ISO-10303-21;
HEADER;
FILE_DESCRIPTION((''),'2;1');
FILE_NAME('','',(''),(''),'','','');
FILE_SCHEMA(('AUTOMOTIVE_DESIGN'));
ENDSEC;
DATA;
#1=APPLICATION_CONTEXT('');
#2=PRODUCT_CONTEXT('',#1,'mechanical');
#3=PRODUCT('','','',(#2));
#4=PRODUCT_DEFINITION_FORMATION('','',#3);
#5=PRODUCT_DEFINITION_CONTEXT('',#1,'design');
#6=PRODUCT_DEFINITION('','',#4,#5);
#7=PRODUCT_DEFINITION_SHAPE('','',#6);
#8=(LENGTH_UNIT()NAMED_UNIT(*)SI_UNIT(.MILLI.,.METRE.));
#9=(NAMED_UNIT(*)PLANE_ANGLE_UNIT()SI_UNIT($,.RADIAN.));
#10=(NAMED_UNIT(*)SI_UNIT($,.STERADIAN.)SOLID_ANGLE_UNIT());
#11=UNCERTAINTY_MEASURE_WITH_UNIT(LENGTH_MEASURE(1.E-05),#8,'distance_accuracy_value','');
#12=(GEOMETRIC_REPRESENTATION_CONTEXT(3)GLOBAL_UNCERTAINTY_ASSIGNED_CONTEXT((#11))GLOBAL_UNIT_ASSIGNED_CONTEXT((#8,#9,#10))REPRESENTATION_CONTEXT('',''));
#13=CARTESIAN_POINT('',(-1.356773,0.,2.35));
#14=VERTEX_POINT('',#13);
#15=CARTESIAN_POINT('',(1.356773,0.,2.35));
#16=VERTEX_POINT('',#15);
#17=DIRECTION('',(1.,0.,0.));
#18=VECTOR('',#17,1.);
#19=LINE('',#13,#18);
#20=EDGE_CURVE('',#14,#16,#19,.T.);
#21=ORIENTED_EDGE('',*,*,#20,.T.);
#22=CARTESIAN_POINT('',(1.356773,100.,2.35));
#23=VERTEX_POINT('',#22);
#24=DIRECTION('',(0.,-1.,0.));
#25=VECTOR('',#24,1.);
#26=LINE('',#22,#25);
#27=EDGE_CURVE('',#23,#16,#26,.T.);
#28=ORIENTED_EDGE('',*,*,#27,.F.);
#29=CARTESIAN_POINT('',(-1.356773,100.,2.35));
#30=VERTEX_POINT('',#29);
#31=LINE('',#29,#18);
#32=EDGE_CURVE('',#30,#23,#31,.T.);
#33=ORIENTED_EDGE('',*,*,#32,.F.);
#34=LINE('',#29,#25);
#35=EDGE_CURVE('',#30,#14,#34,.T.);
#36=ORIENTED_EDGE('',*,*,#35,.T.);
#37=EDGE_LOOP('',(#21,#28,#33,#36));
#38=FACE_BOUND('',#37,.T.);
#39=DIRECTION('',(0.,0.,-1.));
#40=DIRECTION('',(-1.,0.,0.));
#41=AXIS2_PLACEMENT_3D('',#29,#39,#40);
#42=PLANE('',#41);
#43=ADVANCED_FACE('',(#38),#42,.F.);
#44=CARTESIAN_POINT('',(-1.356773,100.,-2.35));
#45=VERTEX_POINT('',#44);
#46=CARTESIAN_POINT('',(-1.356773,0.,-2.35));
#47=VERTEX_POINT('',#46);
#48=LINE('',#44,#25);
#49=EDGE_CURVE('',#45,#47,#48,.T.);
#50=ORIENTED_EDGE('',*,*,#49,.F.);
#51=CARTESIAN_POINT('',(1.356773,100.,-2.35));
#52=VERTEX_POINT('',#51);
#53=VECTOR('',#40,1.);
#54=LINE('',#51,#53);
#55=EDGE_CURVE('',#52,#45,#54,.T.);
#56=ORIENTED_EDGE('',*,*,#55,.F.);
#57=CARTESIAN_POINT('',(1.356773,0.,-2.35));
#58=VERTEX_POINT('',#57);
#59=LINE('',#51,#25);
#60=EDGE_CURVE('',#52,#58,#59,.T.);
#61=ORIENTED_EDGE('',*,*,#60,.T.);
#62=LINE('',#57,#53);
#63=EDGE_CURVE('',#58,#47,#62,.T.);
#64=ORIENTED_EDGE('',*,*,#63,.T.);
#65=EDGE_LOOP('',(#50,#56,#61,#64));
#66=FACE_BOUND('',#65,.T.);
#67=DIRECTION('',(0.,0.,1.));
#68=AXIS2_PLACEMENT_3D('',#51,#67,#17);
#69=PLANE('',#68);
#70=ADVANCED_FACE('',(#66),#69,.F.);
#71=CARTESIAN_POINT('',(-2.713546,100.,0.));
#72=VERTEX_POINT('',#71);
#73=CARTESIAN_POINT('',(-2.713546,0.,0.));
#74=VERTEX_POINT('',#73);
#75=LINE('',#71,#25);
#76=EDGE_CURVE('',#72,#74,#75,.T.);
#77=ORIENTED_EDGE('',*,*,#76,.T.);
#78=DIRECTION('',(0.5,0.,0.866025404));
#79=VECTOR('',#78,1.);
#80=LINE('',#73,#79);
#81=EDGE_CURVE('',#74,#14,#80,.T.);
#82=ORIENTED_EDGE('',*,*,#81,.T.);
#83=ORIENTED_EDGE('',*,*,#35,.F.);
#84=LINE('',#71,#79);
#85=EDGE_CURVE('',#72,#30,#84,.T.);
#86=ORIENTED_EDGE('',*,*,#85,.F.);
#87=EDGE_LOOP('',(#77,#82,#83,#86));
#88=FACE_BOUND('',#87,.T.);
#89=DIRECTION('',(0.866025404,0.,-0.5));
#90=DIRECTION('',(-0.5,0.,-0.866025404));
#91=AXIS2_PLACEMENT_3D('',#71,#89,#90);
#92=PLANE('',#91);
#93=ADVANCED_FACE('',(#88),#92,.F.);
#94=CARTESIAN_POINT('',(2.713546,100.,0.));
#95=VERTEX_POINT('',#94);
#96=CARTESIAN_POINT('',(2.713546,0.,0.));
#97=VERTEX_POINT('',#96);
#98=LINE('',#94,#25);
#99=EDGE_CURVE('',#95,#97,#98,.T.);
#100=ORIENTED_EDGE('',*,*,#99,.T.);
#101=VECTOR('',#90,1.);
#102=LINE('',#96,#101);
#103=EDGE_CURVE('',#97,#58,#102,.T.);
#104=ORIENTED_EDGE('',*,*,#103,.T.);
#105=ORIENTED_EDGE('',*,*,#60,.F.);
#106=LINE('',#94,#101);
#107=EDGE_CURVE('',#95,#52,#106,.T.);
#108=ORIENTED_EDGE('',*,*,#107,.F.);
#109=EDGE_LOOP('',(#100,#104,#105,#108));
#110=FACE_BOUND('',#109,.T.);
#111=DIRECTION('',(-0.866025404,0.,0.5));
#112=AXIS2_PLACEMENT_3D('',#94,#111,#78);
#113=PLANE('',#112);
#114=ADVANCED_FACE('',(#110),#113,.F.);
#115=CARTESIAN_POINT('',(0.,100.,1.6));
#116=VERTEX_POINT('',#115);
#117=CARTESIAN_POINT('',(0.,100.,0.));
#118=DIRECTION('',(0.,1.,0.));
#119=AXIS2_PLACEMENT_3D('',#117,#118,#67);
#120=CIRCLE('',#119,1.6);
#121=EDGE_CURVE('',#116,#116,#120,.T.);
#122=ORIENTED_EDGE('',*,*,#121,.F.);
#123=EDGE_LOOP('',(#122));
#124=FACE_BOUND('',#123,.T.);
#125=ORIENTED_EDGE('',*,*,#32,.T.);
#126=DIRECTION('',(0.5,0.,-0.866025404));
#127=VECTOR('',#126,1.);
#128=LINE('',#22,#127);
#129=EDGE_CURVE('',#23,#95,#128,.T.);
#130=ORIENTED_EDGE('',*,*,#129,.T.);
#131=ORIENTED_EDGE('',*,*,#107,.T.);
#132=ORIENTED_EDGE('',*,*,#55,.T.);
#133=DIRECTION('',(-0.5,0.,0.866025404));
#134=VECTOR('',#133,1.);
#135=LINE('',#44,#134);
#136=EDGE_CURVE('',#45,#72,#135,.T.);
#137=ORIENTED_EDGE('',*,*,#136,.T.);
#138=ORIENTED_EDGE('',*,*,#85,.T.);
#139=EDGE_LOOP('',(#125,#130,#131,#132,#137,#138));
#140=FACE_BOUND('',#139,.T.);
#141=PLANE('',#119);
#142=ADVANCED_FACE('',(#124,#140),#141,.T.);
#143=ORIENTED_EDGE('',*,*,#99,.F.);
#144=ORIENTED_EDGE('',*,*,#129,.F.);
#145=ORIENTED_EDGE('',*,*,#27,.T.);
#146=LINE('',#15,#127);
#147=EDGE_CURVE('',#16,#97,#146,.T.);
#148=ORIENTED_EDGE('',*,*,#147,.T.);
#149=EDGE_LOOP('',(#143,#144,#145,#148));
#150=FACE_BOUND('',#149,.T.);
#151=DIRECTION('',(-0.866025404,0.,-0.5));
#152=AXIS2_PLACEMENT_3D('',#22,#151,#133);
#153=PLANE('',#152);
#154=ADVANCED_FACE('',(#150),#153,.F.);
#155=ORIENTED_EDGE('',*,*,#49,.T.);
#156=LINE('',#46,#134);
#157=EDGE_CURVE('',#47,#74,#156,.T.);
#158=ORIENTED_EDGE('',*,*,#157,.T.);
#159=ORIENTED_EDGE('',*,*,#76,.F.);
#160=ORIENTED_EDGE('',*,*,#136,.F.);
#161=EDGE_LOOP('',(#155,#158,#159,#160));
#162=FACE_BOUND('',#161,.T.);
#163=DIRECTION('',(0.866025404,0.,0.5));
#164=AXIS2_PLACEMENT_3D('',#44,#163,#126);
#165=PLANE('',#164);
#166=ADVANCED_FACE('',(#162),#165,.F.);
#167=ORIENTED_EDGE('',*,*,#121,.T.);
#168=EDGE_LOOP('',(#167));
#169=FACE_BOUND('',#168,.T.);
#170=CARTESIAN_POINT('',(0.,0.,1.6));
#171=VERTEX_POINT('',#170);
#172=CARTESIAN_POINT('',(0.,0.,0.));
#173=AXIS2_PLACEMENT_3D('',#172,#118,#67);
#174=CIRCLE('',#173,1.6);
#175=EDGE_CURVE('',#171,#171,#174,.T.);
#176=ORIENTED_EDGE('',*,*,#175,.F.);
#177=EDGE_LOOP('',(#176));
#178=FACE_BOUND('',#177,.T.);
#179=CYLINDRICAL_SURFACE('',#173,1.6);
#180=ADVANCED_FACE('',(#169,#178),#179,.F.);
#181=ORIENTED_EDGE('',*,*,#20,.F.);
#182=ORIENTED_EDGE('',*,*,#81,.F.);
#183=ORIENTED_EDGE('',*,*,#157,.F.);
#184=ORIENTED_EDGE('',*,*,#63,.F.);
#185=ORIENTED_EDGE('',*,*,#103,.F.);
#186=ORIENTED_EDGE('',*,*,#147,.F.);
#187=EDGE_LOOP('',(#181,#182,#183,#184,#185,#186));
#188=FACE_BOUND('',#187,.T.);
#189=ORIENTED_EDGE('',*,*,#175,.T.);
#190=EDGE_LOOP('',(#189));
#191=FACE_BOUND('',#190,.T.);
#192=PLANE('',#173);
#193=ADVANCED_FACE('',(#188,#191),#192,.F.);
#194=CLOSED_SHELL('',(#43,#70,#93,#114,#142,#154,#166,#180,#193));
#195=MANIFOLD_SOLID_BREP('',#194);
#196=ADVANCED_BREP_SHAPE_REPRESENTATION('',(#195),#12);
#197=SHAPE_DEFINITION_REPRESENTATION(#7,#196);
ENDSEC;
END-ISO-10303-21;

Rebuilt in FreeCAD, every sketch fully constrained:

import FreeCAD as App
import Part
import Sketcher
Q = App.Units.Quantity


def add_polygon(sketch, points):
    """Adds a closed chain of lines whose ends are joined by coincident constraints."""
    first, n = sketch.GeometryCount, len(points)
    for a, b in zip(points, points[1:] + points[:1]):
        sketch.addGeometry(Part.LineSegment(App.Vector(*a, 0), App.Vector(*b, 0)), False)
    for i in range(n):
        sketch.addConstraint(Sketcher.Constraint("Coincident", first + i, 2, first + (i + 1) % n, 1))

doc = App.newDocument("Part")
body = doc.addObject("PartDesign::Body", "Body")

# Sketch on XZ plane
sketch1 = body.newObject("Sketcher::SketchObject", "Sketch")
sketch1.AttachmentSupport = (doc.getObject("XZ_Plane"), [""])
sketch1.MapMode = "FlatFace"
add_polygon(sketch1, [(2.7, 0), (1.4, -2.4), (-1.4, -2.4), (-2.7, 0), (-1.4, 2.4), (1.4, 2.4)])  # lines 0-5
sketch1.addConstraint(Sketcher.Constraint("Horizontal", 1))
sketch1.addConstraint(Sketcher.Constraint("Horizontal", 4))
sketch1.addConstraint(Sketcher.Constraint("Symmetric", 0, 2, 3, 2, -1, 1))
sketch1.addConstraint(Sketcher.Constraint("Symmetric", 2, 2, 5, 2, -1, 1))
sketch1.addConstraint(Sketcher.Constraint("PointOnObject", 2, 2, -1))
sketch1.addConstraint(Sketcher.Constraint("Parallel", 2, 5))
sketch1.addConstraint(Sketcher.Constraint("Vertical", 1, 2, 3, 2))
sketch1.addConstraint(Sketcher.Constraint("Angle", 0, Q("-120 deg")))
sketch1.addConstraint(Sketcher.Constraint("DistanceY", 1, 2, 3, 2, Q("4.7 mm")))
sketch1.addConstraint(Sketcher.Constraint("DistanceX", 1, 2, 1, 1, Q("2.713546 mm")))
pad1 = body.newObject("PartDesign::Pad", "Pad")
pad1.Profile = sketch1
pad1.Length = 100
pad1.Reversed = True

# Sketch on XZ plane
sketch2 = body.newObject("Sketcher::SketchObject", "Sketch001")
sketch2.AttachmentSupport = (doc.getObject("XZ_Plane"), [""])
sketch2.MapMode = "FlatFace"
sketch2.AttachmentOffset = App.Placement(App.Vector(0, 0, -100), App.Rotation())
sketch2.addGeometry(Part.Circle(App.Vector(0, 0, 0), App.Vector(0, 0, 1), 1.6), False)
sketch2.addConstraint(Sketcher.Constraint("Coincident", 0, 3, -1, 1))
sketch2.addConstraint(Sketcher.Constraint("Diameter", 0, Q("3.2 mm")))
pocket1 = body.newObject("PartDesign::Pocket", "Pocket")
pocket1.Profile = sketch2
pocket1.Type = "ThroughAll"
pocket1.Reversed = True

doc.recompute()
